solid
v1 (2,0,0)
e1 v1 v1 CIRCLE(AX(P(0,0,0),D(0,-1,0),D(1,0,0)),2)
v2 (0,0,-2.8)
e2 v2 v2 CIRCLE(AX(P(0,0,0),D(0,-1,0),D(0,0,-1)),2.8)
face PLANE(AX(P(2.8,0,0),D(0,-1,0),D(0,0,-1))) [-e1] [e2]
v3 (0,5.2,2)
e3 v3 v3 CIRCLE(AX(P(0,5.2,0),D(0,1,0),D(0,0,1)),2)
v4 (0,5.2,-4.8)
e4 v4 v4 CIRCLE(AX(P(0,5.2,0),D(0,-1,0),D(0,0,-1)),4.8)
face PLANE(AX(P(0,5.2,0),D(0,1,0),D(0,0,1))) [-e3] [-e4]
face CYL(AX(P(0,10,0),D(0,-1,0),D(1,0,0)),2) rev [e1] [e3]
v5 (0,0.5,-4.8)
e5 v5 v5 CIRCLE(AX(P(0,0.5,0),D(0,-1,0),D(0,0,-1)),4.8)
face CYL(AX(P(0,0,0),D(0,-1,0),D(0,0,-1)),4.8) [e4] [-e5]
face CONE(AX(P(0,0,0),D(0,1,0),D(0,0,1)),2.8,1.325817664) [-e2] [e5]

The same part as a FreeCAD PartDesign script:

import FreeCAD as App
import Part
import Sketcher

doc = App.newDocument("Part")
body = doc.addObject("PartDesign::Body", "Body")

# Sketch on XY plane
sketch1 = body.newObject("Sketcher::SketchObject", "Sketch")
sketch1.AttachmentSupport = (doc.getObject("XY_Plane"), [""])
sketch1.MapMode = "FlatFace"
sketch1.addGeometry([
    Part.LineSegment(App.Vector(4.8, 5.2, 0), App.Vector(0, 5.2, 0)),  # 0
    Part.LineSegment(App.Vector(0, 5.2, 0), App.Vector(0, 0, 0)),  # 1
    Part.LineSegment(App.Vector(0, 0, 0), App.Vector(2.8, 0, 0)),  # 2
    Part.LineSegment(App.Vector(2.8, 0, 0), App.Vector(4.8, 0.5, 0)),  # 3
    Part.LineSegment(App.Vector(4.8, 0.5, 0), App.Vector(4.8, 5.2, 0)),  # 4
], False)
sketch1.addConstraint([
    Sketcher.Constraint("Coincident", 0, 2, 1, 1),
    Sketcher.Constraint("Coincident", 1, 2, 2, 1),
    Sketcher.Constraint("Coincident", 2, 2, 3, 1),
    Sketcher.Constraint("Coincident", 3, 2, 4, 1),
    Sketcher.Constraint("Coincident", 4, 2, 0, 1),
    Sketcher.Constraint("Horizontal", 0),
    Sketcher.Constraint("Vertical", 1),
    Sketcher.Constraint("Horizontal", 2),
    Sketcher.Constraint("Vertical", 4),
    Sketcher.Constraint("Coincident", 1, 2, -1, 1),
    Sketcher.Constraint("DistanceX", 0, 2, 0, 1, 4.8),
    Sketcher.Constraint("DistanceX", 2, 1, 2, 2, 2.8),
    Sketcher.Constraint("DistanceY", 1, 2, 1, 1, 5.2),
    Sketcher.Constraint("DistanceY", 4, 1, 4, 2, 4.7),
])
revolution = body.newObject("PartDesign::Revolution", "Revolution")
revolution.Profile = sketch1
revolution.ReferenceAxis = (sketch1, ["V_Axis"])
revolution.Angle = 360

# Sketch on XZ plane
sketch2 = body.newObject("Sketcher::SketchObject", "Sketch001")
sketch2.AttachmentSupport = (doc.getObject("XZ_Plane"), [""])
sketch2.MapMode = "FlatFace"
sketch2.addGeometry(Part.Circle(App.Vector(0, 0, 0), App.Vector(0, 0, 1), 2), False)
sketch2.addConstraint([
    Sketcher.Constraint("Coincident", 0, 3, -1, 1),
    Sketcher.Constraint("Diameter", 0, 4.0),
])
pocket1 = body.newObject("PartDesign::Pocket", "Pocket")
pocket1.Profile = sketch2
pocket1.Length = 10

doc.recompute()
